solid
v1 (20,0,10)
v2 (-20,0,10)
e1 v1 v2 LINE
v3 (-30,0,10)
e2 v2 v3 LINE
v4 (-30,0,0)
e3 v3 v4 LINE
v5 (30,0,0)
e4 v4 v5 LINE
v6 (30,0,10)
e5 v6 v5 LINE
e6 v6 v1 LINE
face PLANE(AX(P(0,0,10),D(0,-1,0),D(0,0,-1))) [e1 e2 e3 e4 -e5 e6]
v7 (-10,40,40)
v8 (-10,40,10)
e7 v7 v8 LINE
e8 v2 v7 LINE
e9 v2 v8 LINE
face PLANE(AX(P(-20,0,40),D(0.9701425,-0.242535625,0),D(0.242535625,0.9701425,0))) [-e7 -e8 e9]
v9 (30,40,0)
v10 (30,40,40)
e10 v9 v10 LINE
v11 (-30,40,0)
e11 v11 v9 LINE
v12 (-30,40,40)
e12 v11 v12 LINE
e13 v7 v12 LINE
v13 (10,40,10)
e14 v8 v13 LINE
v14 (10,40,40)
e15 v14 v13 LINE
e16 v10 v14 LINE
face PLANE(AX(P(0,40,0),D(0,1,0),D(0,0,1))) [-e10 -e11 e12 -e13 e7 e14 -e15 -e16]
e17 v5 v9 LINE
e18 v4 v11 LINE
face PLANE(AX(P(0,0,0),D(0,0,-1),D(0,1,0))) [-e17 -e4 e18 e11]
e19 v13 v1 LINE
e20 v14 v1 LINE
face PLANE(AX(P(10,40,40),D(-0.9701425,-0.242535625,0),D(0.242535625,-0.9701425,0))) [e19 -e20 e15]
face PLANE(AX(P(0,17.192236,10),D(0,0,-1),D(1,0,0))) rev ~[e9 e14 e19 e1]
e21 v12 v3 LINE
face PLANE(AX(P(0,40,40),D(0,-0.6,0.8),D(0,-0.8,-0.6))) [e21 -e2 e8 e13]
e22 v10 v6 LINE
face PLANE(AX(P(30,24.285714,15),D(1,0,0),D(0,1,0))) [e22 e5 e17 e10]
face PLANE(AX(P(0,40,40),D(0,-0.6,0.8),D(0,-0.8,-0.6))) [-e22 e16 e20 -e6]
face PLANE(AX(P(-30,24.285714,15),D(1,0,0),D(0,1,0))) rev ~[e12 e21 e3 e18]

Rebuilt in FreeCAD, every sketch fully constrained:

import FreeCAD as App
import Part
import Sketcher
from FreeCAD import Vector

doc = App.newDocument("Part")
body = doc.addObject("PartDesign::Body", "Body")

sketch1 = doc.addObject("Sketcher::SketchObject", "Sketch")
body.addObject(sketch1)
sketch1.AttachmentSupport = (doc.YZ_Plane, [""])
sketch1.MapMode = "FlatFace"
sketch1.addGeometry(Part.LineSegment(Vector(0, 10, 0), Vector(0, 0, 0)), False)
sketch1.addGeometry(Part.LineSegment(Vector(0, 0, 0), Vector(40, 0, 0)), False)
sketch1.addGeometry(Part.LineSegment(Vector(40, 0, 0), Vector(40, 40, 0)), False)
sketch1.addGeometry(Part.LineSegment(Vector(40, 40, 0), Vector(0, 10, 0)), False)
sketch1.addConstraint(Sketcher.Constraint("Coincident", 0, 2, 1, 1))
sketch1.addConstraint(Sketcher.Constraint("Coincident", 1, 2, 2, 1))
sketch1.addConstraint(Sketcher.Constraint("Coincident", 2, 2, 3, 1))
sketch1.addConstraint(Sketcher.Constraint("Coincident", 3, 2, 0, 1))
sketch1.addConstraint(Sketcher.Constraint("Vertical", 0))
sketch1.addConstraint(Sketcher.Constraint("Horizontal", 1))
sketch1.addConstraint(Sketcher.Constraint("Vertical", 2))
sketch1.addConstraint(Sketcher.Constraint("Coincident", 0, 2, -1, 1))
sketch1.addConstraint(Sketcher.Constraint("Equal", 1, 2))
sketch1.addConstraint(Sketcher.Constraint("DistanceX", 1, 1, 1, 2, 40.0))
sketch1.addConstraint(Sketcher.Constraint("DistanceY", 0, 2, 0, 1, 10.0))
pad1 = doc.addObject("PartDesign::Pad", "Pad")
body.addObject(pad1)
pad1.Profile = sketch1
pad1.Length = 60
pad1.Midplane = True

sketch2 = doc.addObject("Sketcher::SketchObject", "Sketch001")
body.addObject(sketch2)
sketch2.AttachmentSupport = (doc.XY_Plane, [""])
sketch2.MapMode = "FlatFace"
sketch2.AttachmentOffset = App.Placement(Vector(0, 0, 40), App.Rotation())
sketch2.addGeometry(Part.LineSegment(Vector(-20, 0, 0), Vector(-10, 40, 0)), False)
sketch2.addGeometry(Part.LineSegment(Vector(-10, 40, 0), Vector(10, 40, 0)), False)
sketch2.addGeometry(Part.LineSegment(Vector(10, 40, 0), Vector(20, 0, 0)), False)
sketch2.addGeometry(Part.LineSegment(Vector(20, 0, 0), Vector(-20, 0, 0)), False)
sketch2.addConstraint(Sketcher.Constraint("Coincident", 0, 2, 1, 1))
sketch2.addConstraint(Sketcher.Constraint("Coincident", 1, 2, 2, 1))
sketch2.addConstraint(Sketcher.Constraint("Coincident", 2, 2, 3, 1))
sketch2.addConstraint(Sketcher.Constraint("Coincident", 3, 2, 0, 1))
sketch2.addConstraint(Sketcher.Constraint("Horizontal", 1))
sketch2.addConstraint(Sketcher.Constraint("Horizontal", 3))
sketch2.addConstraint(Sketcher.Constraint("Symmetric", 2, 2, 3, 2, -1, 1))
sketch2.addConstraint(Sketcher.Constraint("Equal", 0, 2))
sketch2.addConstraint(Sketcher.Constraint("DistanceX", 1, 1, 1, 2, 20.0))
sketch2.addConstraint(Sketcher.Constraint("DistanceX", 3, 2, 3, 1, 40.0))
sketch2.addConstraint(Sketcher.Constraint("DistanceY", -1, 1, 0, 2, 40.0))
pocket1 = doc.addObject("PartDesign::Pocket", "Pocket")
body.addObject(pocket1)
pocket1.Profile = sketch2
pocket1.Length = 30

doc.recompute()
